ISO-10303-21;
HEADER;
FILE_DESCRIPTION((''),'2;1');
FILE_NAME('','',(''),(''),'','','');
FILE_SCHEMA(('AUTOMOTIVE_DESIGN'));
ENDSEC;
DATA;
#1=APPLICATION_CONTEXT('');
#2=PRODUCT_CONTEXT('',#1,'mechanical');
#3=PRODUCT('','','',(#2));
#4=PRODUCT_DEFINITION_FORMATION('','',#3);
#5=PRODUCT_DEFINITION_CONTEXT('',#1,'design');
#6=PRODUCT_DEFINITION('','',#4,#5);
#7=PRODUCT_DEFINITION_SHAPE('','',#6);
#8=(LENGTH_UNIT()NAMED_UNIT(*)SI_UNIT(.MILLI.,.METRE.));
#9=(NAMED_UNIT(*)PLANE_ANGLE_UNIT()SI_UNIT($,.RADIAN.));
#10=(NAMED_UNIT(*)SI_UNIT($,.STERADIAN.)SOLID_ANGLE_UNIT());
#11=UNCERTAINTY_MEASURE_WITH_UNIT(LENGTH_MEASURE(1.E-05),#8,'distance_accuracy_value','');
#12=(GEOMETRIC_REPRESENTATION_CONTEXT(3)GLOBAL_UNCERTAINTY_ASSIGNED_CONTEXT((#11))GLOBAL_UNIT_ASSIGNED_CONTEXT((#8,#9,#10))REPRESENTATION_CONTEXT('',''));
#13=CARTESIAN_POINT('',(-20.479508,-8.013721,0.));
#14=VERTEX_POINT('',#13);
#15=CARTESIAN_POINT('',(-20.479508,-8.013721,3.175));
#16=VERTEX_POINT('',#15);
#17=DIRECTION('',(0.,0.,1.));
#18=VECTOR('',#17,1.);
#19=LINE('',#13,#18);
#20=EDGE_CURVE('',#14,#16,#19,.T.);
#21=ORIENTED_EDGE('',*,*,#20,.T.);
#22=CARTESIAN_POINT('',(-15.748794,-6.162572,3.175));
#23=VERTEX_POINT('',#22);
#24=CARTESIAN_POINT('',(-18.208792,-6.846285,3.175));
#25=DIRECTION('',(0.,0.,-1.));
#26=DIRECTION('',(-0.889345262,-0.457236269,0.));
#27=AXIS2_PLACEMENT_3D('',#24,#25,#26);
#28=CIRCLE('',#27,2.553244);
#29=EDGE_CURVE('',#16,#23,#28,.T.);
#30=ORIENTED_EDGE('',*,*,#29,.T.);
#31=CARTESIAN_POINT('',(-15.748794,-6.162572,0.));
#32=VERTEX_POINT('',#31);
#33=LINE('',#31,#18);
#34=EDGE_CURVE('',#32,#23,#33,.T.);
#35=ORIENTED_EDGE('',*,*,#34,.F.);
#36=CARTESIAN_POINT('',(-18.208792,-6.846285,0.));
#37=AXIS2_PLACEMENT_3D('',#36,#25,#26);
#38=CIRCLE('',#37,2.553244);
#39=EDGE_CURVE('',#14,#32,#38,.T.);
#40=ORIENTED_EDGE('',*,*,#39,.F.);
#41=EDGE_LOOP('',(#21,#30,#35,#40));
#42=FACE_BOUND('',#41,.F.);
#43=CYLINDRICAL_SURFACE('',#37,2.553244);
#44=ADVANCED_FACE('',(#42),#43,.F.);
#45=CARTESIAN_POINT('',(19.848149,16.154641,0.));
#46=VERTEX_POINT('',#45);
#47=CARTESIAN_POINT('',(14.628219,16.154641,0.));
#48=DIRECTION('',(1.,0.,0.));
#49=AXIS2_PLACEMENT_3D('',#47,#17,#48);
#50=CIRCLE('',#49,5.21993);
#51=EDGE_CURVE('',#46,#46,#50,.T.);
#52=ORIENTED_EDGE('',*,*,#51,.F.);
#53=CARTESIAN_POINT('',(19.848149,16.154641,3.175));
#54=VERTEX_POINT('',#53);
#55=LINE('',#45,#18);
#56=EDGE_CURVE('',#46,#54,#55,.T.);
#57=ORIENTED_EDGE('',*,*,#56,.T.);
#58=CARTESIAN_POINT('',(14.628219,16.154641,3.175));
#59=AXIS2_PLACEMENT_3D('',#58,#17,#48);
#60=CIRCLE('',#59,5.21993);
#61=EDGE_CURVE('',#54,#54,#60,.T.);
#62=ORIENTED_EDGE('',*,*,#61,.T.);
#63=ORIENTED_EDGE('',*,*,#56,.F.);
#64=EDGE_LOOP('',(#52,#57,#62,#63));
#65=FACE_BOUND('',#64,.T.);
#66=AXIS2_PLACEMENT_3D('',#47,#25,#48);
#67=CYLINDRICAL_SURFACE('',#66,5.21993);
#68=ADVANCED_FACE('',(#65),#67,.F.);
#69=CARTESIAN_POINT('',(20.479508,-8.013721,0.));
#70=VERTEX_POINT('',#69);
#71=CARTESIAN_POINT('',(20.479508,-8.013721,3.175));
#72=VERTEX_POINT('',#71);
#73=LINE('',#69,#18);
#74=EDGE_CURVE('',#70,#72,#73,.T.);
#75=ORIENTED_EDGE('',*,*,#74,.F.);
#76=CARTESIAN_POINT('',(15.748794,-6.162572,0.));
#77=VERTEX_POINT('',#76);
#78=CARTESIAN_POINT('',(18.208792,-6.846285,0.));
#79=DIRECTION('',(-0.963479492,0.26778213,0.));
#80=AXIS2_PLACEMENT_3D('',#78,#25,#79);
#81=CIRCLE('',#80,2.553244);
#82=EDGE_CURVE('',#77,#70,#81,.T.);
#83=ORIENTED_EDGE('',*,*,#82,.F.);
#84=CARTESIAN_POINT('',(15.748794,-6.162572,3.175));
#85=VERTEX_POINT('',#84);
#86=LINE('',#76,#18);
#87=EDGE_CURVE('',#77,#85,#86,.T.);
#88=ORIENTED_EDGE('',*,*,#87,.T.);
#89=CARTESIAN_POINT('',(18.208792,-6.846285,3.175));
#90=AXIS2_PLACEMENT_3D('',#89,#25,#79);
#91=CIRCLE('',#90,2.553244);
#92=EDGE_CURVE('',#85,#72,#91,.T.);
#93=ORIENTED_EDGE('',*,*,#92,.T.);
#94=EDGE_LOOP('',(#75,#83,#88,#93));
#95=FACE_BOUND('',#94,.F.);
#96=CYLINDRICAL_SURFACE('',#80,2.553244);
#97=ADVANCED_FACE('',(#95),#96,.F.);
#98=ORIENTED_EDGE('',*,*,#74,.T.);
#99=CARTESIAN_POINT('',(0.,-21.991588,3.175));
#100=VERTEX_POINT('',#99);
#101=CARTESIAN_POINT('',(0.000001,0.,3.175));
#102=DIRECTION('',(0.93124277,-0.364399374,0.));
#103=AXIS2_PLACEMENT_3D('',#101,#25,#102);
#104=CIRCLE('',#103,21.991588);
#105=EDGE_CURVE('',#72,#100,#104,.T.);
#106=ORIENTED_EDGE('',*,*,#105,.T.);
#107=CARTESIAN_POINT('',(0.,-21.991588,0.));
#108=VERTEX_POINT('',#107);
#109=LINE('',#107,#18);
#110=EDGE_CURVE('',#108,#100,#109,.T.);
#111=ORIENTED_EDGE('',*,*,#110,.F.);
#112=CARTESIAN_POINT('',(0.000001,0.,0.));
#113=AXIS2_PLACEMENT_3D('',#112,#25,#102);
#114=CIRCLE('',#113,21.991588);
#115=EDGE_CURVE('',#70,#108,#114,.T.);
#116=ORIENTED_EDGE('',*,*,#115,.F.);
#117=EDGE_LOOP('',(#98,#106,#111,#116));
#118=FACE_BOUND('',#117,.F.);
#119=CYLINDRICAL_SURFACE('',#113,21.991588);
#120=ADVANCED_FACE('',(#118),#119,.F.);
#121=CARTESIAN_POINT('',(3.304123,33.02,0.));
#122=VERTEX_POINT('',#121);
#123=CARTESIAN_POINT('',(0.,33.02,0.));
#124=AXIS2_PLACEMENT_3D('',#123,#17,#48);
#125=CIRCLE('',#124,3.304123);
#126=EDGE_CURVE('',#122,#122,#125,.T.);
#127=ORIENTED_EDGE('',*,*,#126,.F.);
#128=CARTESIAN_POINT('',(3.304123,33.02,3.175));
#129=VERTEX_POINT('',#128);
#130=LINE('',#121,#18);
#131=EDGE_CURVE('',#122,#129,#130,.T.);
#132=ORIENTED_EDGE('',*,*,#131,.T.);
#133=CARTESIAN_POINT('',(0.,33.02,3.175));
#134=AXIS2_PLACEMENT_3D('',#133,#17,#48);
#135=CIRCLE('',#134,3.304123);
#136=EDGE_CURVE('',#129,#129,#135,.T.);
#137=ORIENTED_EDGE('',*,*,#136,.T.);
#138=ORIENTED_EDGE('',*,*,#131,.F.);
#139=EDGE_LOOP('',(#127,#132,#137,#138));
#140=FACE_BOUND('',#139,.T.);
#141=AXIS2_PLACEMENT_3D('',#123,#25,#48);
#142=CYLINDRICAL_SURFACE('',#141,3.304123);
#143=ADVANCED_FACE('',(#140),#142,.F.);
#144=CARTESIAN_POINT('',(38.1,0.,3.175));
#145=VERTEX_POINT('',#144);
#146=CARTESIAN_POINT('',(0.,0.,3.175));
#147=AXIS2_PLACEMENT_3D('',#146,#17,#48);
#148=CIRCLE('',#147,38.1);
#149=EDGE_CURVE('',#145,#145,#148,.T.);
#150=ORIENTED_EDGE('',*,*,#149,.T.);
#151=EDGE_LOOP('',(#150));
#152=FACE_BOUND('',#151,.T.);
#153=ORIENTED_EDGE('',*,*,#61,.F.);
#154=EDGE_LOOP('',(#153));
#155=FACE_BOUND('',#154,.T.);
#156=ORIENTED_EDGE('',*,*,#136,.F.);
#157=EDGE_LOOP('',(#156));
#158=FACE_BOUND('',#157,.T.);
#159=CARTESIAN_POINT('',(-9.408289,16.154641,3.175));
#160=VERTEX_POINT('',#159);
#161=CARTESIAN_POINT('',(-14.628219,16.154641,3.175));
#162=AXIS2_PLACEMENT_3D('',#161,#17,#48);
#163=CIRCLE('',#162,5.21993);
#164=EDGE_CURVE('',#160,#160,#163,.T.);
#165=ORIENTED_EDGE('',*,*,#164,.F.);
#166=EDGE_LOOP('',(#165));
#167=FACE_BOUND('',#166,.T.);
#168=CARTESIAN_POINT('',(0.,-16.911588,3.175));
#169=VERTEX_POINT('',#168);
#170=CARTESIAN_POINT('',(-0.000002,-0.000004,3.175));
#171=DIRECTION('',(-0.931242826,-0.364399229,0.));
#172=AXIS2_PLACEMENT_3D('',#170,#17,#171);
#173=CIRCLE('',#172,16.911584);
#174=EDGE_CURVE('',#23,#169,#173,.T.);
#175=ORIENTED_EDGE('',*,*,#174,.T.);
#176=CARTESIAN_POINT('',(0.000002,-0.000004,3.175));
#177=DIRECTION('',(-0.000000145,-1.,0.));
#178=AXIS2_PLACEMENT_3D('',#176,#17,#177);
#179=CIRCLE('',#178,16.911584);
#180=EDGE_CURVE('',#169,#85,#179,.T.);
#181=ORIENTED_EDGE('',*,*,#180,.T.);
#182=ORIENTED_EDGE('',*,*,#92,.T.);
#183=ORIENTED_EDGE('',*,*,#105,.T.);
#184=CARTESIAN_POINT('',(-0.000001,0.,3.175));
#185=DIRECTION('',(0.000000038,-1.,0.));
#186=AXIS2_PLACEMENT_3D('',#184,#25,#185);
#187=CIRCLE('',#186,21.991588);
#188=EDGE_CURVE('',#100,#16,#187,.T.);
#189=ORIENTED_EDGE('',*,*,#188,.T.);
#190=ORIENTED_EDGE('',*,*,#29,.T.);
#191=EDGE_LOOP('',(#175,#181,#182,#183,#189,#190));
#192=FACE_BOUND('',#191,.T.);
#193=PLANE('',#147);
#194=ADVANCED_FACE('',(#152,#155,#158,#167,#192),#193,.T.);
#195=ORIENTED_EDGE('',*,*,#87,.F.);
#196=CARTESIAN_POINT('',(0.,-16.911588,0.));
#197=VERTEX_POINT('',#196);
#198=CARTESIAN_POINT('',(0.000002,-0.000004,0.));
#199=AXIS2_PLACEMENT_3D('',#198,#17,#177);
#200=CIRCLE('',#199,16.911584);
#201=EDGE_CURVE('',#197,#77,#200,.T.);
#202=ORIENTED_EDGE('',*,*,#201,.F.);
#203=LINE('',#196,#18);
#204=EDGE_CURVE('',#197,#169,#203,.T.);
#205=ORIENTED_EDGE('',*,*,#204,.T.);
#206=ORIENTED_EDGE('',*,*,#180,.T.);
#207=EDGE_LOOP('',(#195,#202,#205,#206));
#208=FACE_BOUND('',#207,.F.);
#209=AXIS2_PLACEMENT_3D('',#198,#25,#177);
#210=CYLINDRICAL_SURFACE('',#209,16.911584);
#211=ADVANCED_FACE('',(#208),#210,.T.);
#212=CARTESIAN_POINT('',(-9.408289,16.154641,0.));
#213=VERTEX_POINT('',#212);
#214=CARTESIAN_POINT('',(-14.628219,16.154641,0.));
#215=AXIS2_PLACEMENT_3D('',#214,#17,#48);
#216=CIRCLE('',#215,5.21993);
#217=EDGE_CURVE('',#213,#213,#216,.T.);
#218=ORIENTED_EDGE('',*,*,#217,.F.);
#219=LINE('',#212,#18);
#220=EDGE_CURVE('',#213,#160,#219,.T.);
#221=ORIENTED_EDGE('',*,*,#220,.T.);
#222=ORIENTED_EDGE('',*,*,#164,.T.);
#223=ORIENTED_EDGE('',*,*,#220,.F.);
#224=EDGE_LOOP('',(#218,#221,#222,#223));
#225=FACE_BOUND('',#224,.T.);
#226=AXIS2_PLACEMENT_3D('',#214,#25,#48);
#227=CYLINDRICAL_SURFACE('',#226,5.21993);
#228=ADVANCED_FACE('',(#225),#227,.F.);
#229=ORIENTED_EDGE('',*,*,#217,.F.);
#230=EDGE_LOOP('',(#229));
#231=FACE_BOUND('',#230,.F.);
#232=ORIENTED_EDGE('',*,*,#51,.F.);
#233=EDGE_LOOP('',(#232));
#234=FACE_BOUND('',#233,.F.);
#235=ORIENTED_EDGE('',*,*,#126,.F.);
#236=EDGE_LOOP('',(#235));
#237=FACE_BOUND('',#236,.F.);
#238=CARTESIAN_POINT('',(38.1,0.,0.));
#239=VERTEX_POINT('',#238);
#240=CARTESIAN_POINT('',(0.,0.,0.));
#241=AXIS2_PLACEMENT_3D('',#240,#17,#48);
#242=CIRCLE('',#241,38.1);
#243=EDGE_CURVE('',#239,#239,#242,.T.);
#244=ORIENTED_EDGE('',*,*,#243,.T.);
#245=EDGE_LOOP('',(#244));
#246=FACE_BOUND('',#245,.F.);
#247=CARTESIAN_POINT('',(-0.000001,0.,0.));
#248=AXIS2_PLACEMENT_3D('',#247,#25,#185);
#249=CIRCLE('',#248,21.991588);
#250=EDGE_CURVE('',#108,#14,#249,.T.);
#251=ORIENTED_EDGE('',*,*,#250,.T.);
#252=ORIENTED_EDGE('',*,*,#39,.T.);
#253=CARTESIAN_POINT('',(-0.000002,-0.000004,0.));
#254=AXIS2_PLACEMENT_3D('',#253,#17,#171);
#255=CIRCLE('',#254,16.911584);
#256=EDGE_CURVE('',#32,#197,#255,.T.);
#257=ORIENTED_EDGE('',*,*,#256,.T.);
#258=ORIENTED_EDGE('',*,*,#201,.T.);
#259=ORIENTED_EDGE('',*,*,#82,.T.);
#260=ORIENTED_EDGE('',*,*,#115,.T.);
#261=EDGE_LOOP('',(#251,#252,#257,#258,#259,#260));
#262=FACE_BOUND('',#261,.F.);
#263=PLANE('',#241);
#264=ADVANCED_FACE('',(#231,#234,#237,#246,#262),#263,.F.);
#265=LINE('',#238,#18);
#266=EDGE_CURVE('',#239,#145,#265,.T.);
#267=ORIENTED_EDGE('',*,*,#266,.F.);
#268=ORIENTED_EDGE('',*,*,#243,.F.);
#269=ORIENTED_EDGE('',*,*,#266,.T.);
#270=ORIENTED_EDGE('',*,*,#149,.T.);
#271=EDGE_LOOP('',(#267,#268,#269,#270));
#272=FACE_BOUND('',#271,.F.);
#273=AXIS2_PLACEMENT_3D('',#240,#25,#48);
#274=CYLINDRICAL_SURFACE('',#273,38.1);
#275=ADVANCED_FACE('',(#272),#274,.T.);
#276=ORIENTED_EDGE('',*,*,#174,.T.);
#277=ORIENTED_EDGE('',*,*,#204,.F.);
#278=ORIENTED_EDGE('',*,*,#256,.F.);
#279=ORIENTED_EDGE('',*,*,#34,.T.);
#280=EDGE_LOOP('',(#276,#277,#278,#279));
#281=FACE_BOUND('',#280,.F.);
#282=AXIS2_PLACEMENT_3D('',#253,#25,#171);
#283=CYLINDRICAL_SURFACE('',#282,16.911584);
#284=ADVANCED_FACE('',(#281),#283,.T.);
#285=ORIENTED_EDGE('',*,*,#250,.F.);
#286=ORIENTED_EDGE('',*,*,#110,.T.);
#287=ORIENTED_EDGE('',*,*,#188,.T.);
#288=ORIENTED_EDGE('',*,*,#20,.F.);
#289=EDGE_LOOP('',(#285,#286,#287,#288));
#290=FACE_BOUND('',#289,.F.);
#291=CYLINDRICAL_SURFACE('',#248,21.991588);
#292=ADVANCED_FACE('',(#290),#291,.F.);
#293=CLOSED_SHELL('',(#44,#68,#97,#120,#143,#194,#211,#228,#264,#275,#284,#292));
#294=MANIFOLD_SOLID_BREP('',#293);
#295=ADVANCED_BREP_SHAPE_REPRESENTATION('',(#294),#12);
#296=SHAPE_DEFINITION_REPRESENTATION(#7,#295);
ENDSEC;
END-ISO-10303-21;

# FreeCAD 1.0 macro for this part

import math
import FreeCAD as App
import Part
import Sketcher

V = App.Vector
Q = App.Units.Quantity

doc = App.newDocument("Part")
body = doc.addObject("PartDesign::Body", "Body")

sketch1 = body.newObject("Sketcher::SketchObject", "Sketch")
sketch1.AttachmentSupport = (doc.getObject("XY_Plane"), [""])
sketch1.MapMode = "FlatFace"
sketch1.addGeometry(Part.Circle(V(0, 0, 0), V(0, 0, 1), 38.1), False)
sketch1.addGeometry(Part.ArcOfCircle(Part.Circle(V(0.000001, 0, 0), V(0, 0, 1), 21.991588), math.radians(-90.000002), math.radians(-21.370624)), False)
sketch1.addGeometry(Part.ArcOfCircle(Part.Circle(V(-0.000001, 0, 0), V(0, 0, 1), 21.991588), math.radians(-158.629376), math.radians(-89.999998)), False)
sketch1.addGeometry(Part.ArcOfCircle(Part.Circle(V(-18.208792, -6.846285, 0), V(0, 0, 1), 2.553244), math.radians(15.532333), math.radians(207.208912)), False)
sketch1.addGeometry(Part.ArcOfCircle(Part.Circle(V(-0.000002, -0.000004, 0), V(0, 0, 1), 16.911584), math.radians(-158.629385), math.radians(-89.999992)), False)
sketch1.addGeometry(Part.ArcOfCircle(Part.Circle(V(0.000002, -0.000004, 0), V(0, 0, 1), 16.911584), math.radians(-90.000008), math.radians(-21.370615)), False)
sketch1.addGeometry(Part.ArcOfCircle(Part.Circle(V(18.208792, -6.846285, 0), V(0, 0, 1), 2.553244), math.radians(-27.208912), math.radians(164.467667)), False)
sketch1.addGeometry(Part.Circle(V(-14.628219, 16.154641, 0), V(0, 0, 1), 5.21993), False)
sketch1.addGeometry(Part.Circle(V(14.628219, 16.154641, 0), V(0, 0, 1), 5.21993), False)
sketch1.addGeometry(Part.Circle(V(0, 33.02, 0), V(0, 0, 1), 3.304123), False)
sketch1.addConstraint(Sketcher.Constraint("Tangent", 1, 1, 2, 2))
sketch1.addConstraint(Sketcher.Constraint("Coincident", 2, 1, 3, 2))
sketch1.addConstraint(Sketcher.Constraint("Coincident", 3, 1, 4, 1))
sketch1.addConstraint(Sketcher.Constraint("Tangent", 4, 2, 5, 1))
sketch1.addConstraint(Sketcher.Constraint("Coincident", 5, 2, 6, 2))
sketch1.addConstraint(Sketcher.Constraint("Coincident", 6, 1, 1, 2))
sketch1.addConstraint(Sketcher.Constraint("Coincident", 0, 3, -1, 1))
sketch1.addConstraint(Sketcher.Constraint("Coincident", 1, 3, -1, 1))
sketch1.addConstraint(Sketcher.Constraint("Coincident", 4, 3, -1, 1))
sketch1.addConstraint(Sketcher.Constraint("Equal", 1, 2))
sketch1.addConstraint(Sketcher.Constraint("Equal", 4, 5))
sketch1.addConstraint(Sketcher.Constraint("Equal", 3, 6))
sketch1.addConstraint(Sketcher.Constraint("Equal", 7, 8))
sketch1.addConstraint(Sketcher.Constraint("Symmetric", 3, 3, 6, 3, -2))
sketch1.addConstraint(Sketcher.Constraint("Symmetric", 7, 3, 8, 3, -2))
sketch1.addConstraint(Sketcher.Constraint("PointOnObject", 9, 3, -2))
sketch1.addConstraint(Sketcher.Constraint("PointOnObject", 1, 1, -2))
sketch1.addConstraint(Sketcher.Constraint("PointOnObject", 4, 2, -2))
sketch1.addConstraint(Sketcher.Constraint("Diameter", 0, Q("3 in")))
sketch1.addConstraint(Sketcher.Constraint("DistanceY", -1, 1, 9, 3, Q("1.3 in")))
sketch1.addConstraint(Sketcher.Constraint("DistanceY", 1, 1, 4, 2, Q("0.2 in")))
sketch1.addConstraint(Sketcher.Constraint("Diameter", 7, Q("10.43986 mm")))
sketch1.addConstraint(Sketcher.Constraint("Diameter", 9, Q("6.608246 mm")))
sketch1.addConstraint(Sketcher.Constraint("Radius", 1, Q("21.991588 mm")))
sketch1.addConstraint(Sketcher.Constraint("Radius", 3, Q("2.553244 mm")))
sketch1.addConstraint(Sketcher.Constraint("DistanceX", 3, 3, 3, 1, Q("2.459998 mm")))
sketch1.addConstraint(Sketcher.Constraint("DistanceX", 7, 3, -1, 1, Q("14.628219 mm")))
sketch1.addConstraint(Sketcher.Constraint("DistanceY", -1, 1, 7, 3, Q("16.154641 mm")))
sketch1.addConstraint(Sketcher.Constraint("DistanceY", 2, 1, -1, 1, Q("8.013721 mm")))
pad1 = body.newObject("PartDesign::Pad", "Pad")
pad1.Profile = sketch1
pad1.Length = Q("0.125 in")

doc.recompute()
